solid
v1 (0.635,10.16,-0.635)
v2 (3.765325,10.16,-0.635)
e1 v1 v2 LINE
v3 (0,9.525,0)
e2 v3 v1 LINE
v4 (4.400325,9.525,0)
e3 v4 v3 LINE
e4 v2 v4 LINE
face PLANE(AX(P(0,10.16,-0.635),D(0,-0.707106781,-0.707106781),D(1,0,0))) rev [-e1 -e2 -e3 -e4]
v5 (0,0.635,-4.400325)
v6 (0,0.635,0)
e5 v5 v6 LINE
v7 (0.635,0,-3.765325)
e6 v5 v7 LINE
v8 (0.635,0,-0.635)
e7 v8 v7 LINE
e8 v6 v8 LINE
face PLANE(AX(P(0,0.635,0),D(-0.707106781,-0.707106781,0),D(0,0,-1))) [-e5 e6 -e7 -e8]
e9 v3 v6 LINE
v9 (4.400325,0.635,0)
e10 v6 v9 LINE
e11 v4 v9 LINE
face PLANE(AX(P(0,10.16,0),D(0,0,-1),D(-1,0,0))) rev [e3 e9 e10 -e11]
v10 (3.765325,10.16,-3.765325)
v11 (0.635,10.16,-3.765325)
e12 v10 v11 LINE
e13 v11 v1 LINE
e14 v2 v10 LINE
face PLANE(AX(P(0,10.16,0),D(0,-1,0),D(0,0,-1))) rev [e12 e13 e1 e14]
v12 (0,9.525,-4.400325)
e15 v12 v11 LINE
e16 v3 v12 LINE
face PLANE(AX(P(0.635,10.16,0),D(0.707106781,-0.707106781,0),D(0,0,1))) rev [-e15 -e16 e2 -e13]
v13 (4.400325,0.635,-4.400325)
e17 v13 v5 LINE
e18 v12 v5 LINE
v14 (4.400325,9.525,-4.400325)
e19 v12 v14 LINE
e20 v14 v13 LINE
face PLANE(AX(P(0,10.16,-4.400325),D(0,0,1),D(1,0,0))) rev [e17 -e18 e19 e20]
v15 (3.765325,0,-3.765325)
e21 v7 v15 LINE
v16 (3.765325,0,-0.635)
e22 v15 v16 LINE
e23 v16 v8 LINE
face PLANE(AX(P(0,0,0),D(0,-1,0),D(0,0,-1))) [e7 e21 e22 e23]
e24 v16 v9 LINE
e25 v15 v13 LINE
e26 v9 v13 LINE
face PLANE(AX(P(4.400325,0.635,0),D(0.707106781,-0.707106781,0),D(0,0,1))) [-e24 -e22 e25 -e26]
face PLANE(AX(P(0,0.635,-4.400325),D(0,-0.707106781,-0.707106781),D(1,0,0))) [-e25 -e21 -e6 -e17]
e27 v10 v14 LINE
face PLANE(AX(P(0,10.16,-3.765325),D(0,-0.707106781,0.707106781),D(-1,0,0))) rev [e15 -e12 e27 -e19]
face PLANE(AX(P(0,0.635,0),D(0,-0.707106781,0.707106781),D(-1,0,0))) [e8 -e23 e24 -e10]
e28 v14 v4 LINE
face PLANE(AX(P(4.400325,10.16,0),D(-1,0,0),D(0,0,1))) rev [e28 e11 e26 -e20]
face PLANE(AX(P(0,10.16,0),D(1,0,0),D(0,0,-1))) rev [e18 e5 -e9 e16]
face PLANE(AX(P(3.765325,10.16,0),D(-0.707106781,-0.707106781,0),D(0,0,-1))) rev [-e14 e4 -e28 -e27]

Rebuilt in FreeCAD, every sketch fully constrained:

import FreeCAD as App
import Part
import Sketcher

V = App.Vector
Q = App.Units.Quantity


def edges_at(feature, points):
    """Names of the edges that pass closest to the given points."""
    edges = feature.Shape.Edges
    near = lambda p: min(range(len(edges)), key=lambda i: edges[i].distToShape(Part.Vertex(*p))[0])
    return sorted({f"Edge{near(p) + 1}" for p in points})

doc = App.newDocument("Part")
body = doc.addObject("PartDesign::Body", "Body")

sketch1 = body.newObject("Sketcher::SketchObject", "Sketch")
sketch1.AttachmentSupport = (doc.getObject("XZ_Plane"), [""])
sketch1.MapMode = "FlatFace"
sketch1.addGeometry([
    Part.LineSegment(V(0, -4.4, 0), V(0, 0, 0)),
    Part.LineSegment(V(0, 0, 0), V(4.4, 0, 0)),
    Part.LineSegment(V(4.4, 0, 0), V(4.4, -4.4, 0)),
    Part.LineSegment(V(4.4, -4.4, 0), V(0, -4.4, 0)),
], False)
sketch1.addConstraint([
    Sketcher.Constraint("Coincident", 0, 2, 1, 1),
    Sketcher.Constraint("Coincident", 1, 2, 2, 1),
    Sketcher.Constraint("Coincident", 2, 2, 3, 1),
    Sketcher.Constraint("Coincident", 3, 2, 0, 1),
    Sketcher.Constraint("Vertical", 0),
    Sketcher.Constraint("Horizontal", 1),
    Sketcher.Constraint("Vertical", 2),
    Sketcher.Constraint("Horizontal", 3),
    Sketcher.Constraint("Coincident", 0, 2, -1, 1),
    Sketcher.Constraint("Equal", 3, 0),
    Sketcher.Constraint("DistanceX", 1, 1, 1, 2, 4.400325),
])
pad1 = body.newObject("PartDesign::Pad", "Pad")
pad1.Profile = sketch1
pad1.Length = Q("0.4 in")
pad1.Reversed = True
doc.recompute()

chamfer = body.newObject("PartDesign::Chamfer", "Chamfer")
chamfer.Base = (pad1, edges_at(pad1, [
    (4.4, 10.16, -2.2),
    (2.2, 10.16, -4.4),
    (0, 10.16, -2.2),
    (2.2, 0, -4.4),
    (4.4, 0, -2.2),
    (2.2, 0, 0),
    (0, 0, -2.2),
    (2.2, 10.16, 0),
]))
chamfer.Size = Q("0.025 in")

doc.recompute()
